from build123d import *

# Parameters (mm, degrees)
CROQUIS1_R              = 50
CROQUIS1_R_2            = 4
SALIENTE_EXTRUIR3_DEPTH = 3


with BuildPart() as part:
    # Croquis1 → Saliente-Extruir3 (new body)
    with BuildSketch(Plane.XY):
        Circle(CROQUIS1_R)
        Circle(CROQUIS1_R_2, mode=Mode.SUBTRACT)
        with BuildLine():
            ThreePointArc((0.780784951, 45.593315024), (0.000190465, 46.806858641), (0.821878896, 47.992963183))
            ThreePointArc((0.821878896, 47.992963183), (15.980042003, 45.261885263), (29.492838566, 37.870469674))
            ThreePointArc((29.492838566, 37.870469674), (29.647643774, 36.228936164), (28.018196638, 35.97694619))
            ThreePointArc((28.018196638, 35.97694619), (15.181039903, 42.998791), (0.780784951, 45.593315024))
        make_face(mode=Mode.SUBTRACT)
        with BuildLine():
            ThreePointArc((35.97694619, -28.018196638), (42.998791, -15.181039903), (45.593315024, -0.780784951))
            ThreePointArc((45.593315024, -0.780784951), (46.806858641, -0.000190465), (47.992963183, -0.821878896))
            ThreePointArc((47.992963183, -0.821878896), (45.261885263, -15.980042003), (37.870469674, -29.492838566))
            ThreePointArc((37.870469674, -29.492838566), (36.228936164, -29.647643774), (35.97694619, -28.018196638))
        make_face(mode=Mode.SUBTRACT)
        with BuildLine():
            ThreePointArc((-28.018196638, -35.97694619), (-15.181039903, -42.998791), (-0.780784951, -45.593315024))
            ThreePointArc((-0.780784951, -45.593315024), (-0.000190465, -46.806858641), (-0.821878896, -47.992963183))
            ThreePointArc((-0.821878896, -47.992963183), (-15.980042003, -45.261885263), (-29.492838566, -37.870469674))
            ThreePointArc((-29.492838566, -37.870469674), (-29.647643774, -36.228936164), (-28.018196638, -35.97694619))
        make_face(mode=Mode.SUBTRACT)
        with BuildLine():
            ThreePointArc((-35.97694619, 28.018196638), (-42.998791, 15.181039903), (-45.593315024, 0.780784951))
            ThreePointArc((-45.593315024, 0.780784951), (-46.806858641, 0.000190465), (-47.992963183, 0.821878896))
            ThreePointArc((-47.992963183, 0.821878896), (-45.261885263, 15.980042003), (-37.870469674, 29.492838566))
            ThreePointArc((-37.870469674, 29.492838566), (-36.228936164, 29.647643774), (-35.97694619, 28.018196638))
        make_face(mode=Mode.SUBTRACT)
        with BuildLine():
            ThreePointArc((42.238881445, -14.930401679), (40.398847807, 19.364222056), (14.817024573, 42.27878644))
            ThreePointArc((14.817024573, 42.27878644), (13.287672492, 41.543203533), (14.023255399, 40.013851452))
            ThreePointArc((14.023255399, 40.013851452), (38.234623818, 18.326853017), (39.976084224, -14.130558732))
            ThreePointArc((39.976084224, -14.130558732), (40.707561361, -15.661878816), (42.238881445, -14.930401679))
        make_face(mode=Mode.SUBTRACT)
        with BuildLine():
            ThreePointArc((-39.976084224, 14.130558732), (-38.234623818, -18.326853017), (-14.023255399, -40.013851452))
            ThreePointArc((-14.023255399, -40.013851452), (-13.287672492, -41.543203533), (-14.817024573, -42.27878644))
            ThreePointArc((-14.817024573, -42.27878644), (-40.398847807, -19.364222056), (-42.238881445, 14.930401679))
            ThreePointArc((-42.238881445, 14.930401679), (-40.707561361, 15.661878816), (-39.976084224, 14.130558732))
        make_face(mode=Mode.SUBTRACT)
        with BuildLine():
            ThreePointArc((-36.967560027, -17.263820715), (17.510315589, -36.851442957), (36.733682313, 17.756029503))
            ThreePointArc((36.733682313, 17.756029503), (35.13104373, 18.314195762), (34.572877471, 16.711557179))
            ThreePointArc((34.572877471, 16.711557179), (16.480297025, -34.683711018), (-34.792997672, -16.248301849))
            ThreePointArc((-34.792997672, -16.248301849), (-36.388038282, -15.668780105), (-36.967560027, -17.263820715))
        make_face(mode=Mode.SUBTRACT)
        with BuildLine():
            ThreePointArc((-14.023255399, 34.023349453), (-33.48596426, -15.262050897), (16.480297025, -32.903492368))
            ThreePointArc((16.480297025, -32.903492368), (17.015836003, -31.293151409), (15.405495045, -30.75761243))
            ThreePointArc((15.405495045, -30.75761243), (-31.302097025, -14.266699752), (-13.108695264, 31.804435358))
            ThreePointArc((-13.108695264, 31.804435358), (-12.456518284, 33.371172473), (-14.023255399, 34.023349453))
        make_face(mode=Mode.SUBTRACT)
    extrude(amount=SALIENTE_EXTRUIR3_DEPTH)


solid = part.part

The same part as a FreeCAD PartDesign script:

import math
import FreeCAD as App
import Part
import Sketcher

V = App.Vector
Q = App.Units.Quantity

doc = App.newDocument("Part")
body = doc.addObject("PartDesign::Body", "Body")

# Sketch on XY plane
sketch1 = body.newObject("Sketcher::SketchObject", "Sketch")
sketch1.AttachmentSupport = (doc.getObject("XY_Plane"), [""])
sketch1.MapMode = "FlatFace"
sketch1.addGeometry(Part.Circle(V(0, 0, 0), V(0, 0, 1), 50), False)
sketch1.addGeometry(Part.ArcOfCircle(Part.Circle(V(-28.699209, -36.96756, 0), V(0, 0, 1), 1.20212), math.radians(55.492836), math.radians(228.685533)), False)
sketch1.addGeometry(Part.ArcOfCircle(Part.Circle(V(0, 0, 0), V(0, 0, 1), 45.6), math.radians(-127.910815), math.radians(-90.981094)), False)
sketch1.addGeometry(Part.ArcOfCircle(Part.Circle(V(-1.299215, -46.784613, 0), V(0, 0, 1), 1.299215), math.radians(-68.444416), math.radians(66.482229)), False)
sketch1.addGeometry(Part.ArcOfCircle(Part.Circle(V(0, 0, 0), V(0, 0, 1), 48), math.radians(-127.910815), math.radians(-90.981094)), False)
sketch1.addGeometry(Part.ArcOfCircle(Part.Circle(V(-41.107483, 14.53048, 0), V(0, 0, 1), 1.2), math.radians(-19.467244), math.radians(160.532756)), False)
sketch1.addGeometry(Part.ArcOfCircle(Part.Circle(V(0, 0, 0), V(0, 0, 1), 42.4), math.radians(160.532756), math.radians(250.686476)), False)
sketch1.addGeometry(Part.ArcOfCircle(Part.Circle(V(-14.42014, -41.146319, 0), V(0, 0, 1), 1.2), math.radians(-109.313524), math.radians(70.686476)), False)
sketch1.addGeometry(Part.ArcOfCircle(Part.Circle(V(0, 0, 0), V(0, 0, 1), 44.8), math.radians(160.532756), math.radians(250.686476)), False)
sketch1.addGeometry(Part.ArcOfCircle(Part.Circle(V(0, 0, 0), V(0, 0, 1), 36.8), math.radians(112.399774), math.radians(296.60481)), False)
sketch1.addGeometry(Part.ArcOfCircle(Part.Circle(V(-13.565975, 32.913892, 0), V(0, 0, 1), 1.2), math.radians(-67.600226), math.radians(112.399774)), False)
sketch1.addGeometry(Part.ArcOfCircle(Part.Circle(V(0, 0, 0), V(0, 0, 1), 34.4), math.radians(112.399774), math.radians(296.60481)), False)
sketch1.addGeometry(Part.ArcOfCircle(Part.Circle(V(15.942896, -31.830552, 0), V(0, 0, 1), 1.2), math.radians(-63.395189), math.radians(116.60481)), False)
sketch1.addGeometry(Part.ArcOfCircle(Part.Circle(V(0, 0, 0), V(0, 0, 1), 40.8), math.radians(-154.967463), math.radians(25.797817)), False)
sketch1.addGeometry(Part.ArcOfCircle(Part.Circle(V(-35.880279, -16.756061, 0), V(0, 0, 1), 1.2), math.radians(25.032537), math.radians(205.032537)), False)
sketch1.addGeometry(Part.ArcOfCircle(Part.Circle(V(0, 0, 0), V(0, 0, 1), 38.4), math.radians(-154.967463), math.radians(25.797817)), False)
sketch1.addGeometry(Part.ArcOfCircle(Part.Circle(V(35.65328, 17.233793, 0), V(0, 0, 1), 1.2), math.radians(25.797817), math.radians(205.797817)), False)
sketch1.addGeometry(Part.ArcOfCircle(Part.Circle(V(36.96756, -28.699209, 0), V(0, 0, 1), 1.20212), math.radians(145.492836), math.radians(318.685533)), False)
sketch1.addGeometry(Part.ArcOfCircle(Part.Circle(V(0, 0, 0), V(0, 0, 1), 45.6), math.radians(-37.910815), math.radians(-0.981094)), False)
sketch1.addGeometry(Part.ArcOfCircle(Part.Circle(V(46.784613, -1.299215, 0), V(0, 0, 1), 1.299215), math.radians(21.555584), math.radians(156.482229)), False)
sketch1.addGeometry(Part.ArcOfCircle(Part.Circle(V(0, 0, 0), V(0, 0, 1), 48), math.radians(-37.910815), math.radians(-0.981094)), False)
sketch1.addGeometry(Part.ArcOfCircle(Part.Circle(V(-36.96756, 28.699209, 0), V(0, 0, 1), 1.20212), math.radians(-34.507164), math.radians(138.685533)), False)
sketch1.addGeometry(Part.ArcOfCircle(Part.Circle(V(0, 0, 0), V(0, 0, 1), 45.6), math.radians(142.089185), math.radians(179.018906)), False)
sketch1.addGeometry(Part.ArcOfCircle(Part.Circle(V(-46.784613, 1.299215, 0), V(0, 0, 1), 1.299215), math.radians(-158.444416), math.radians(-23.517771)), False)
sketch1.addGeometry(Part.ArcOfCircle(Part.Circle(V(0, 0, 0), V(0, 0, 1), 48), math.radians(142.089185), math.radians(179.018906)), False)
sketch1.addGeometry(Part.Circle(V(0, 0, 0), V(0, 0, 1), 4), False)
sketch1.addGeometry(Part.ArcOfCircle(Part.Circle(V(0, 0, 0), V(0, 0, 1), 44.8), math.radians(-19.467244), math.radians(70.686476)), False)
sketch1.addGeometry(Part.ArcOfCircle(Part.Circle(V(41.107483, -14.53048, 0), V(0, 0, 1), 1.2), math.radians(160.532756), math.radians(340.532756)), False)
sketch1.addGeometry(Part.ArcOfCircle(Part.Circle(V(0, 0, 0), V(0, 0, 1), 42.4), math.radians(-19.467244), math.radians(70.686476)), False)
sketch1.addGeometry(Part.ArcOfCircle(Part.Circle(V(14.42014, 41.146319, 0), V(0, 0, 1), 1.2), math.radians(70.686476), math.radians(250.686476)), False)
sketch1.addGeometry(Part.ArcOfCircle(Part.Circle(V(0, 0, 0), V(0, 0, 1), 45.6), math.radians(52.089185), math.radians(89.018906)), False)
sketch1.addGeometry(Part.ArcOfCircle(Part.Circle(V(1.299215, 46.784613, 0), V(0, 0, 1), 1.299215), math.radians(111.555584), math.radians(246.482229)), False)
sketch1.addGeometry(Part.ArcOfCircle(Part.Circle(V(0, 0, 0), V(0, 0, 1), 48), math.radians(52.089185), math.radians(89.018906)), False)
sketch1.addGeometry(Part.ArcOfCircle(Part.Circle(V(28.699209, 36.96756, 0), V(0, 0, 1), 1.20212), math.radians(-124.507164), math.radians(48.685533)), False)
sketch1.addConstraint(Sketcher.Constraint("Coincident", 1, 1, 2, 1))
sketch1.addConstraint(Sketcher.Constraint("Coincident", 2, 2, 3, 2))
sketch1.addConstraint(Sketcher.Constraint("Coincident", 3, 1, 4, 2))
sketch1.addConstraint(Sketcher.Constraint("Coincident", 4, 1, 1, 2))
sketch1.addConstraint(Sketcher.Constraint("Tangent", 5, 1, 6, 1))
sketch1.addConstraint(Sketcher.Constraint("Tangent", 6, 2, 7, 2))
sketch1.addConstraint(Sketcher.Constraint("Tangent", 7, 1, 8, 2))
sketch1.addConstraint(Sketcher.Constraint("Tangent", 8, 1, 5, 2))
sketch1.addConstraint(Sketcher.Constraint("Tangent", 9, 1, 10, 2))
sketch1.addConstraint(Sketcher.Constraint("Tangent", 10, 1, 11, 1))
sketch1.addConstraint(Sketcher.Constraint("Tangent", 11, 2, 12, 2))
sketch1.addConstraint(Sketcher.Constraint("Tangent", 12, 1, 9, 2))
sketch1.addConstraint(Sketcher.Constraint("Tangent", 13, 1, 14, 2))
sketch1.addConstraint(Sketcher.Constraint("Tangent", 14, 1, 15, 1))
sketch1.addConstraint(Sketcher.Constraint("Tangent", 15, 2, 16, 2))
sketch1.addConstraint(Sketcher.Constraint("Tangent", 16, 1, 13, 2))
sketch1.addConstraint(Sketcher.Constraint("Coincident", 17, 1, 18, 1))
sketch1.addConstraint(Sketcher.Constraint("Coincident", 18, 2, 19, 2))
sketch1.addConstraint(Sketcher.Constraint("Coincident", 19, 1, 20, 2))
sketch1.addConstraint(Sketcher.Constraint("Coincident", 20, 1, 17, 2))
sketch1.addConstraint(Sketcher.Constraint("Coincident", 21, 1, 22, 1))
sketch1.addConstraint(Sketcher.Constraint("Coincident", 22, 2, 23, 2))
sketch1.addConstraint(Sketcher.Constraint("Coincident", 23, 1, 24, 2))
sketch1.addConstraint(Sketcher.Constraint("Coincident", 24, 1, 21, 2))
sketch1.addConstraint(Sketcher.Constraint("Tangent", 26, 1, 27, 2))
sketch1.addConstraint(Sketcher.Constraint("Tangent", 27, 1, 28, 1))
sketch1.addConstraint(Sketcher.Constraint("Tangent", 28, 2, 29, 2))
sketch1.addConstraint(Sketcher.Constraint("Tangent", 29, 1, 26, 2))
sketch1.addConstraint(Sketcher.Constraint("Coincident", 30, 2, 31, 2))
sketch1.addConstraint(Sketcher.Constraint("Coincident", 31, 1, 32, 2))
sketch1.addConstraint(Sketcher.Constraint("Coincident", 32, 1, 33, 2))
sketch1.addConstraint(Sketcher.Constraint("Coincident", 33, 1, 30, 1))
sketch1.addConstraint(Sketcher.Constraint("Coincident", 0, 3, -1, 1))
sketch1.addConstraint(Sketcher.Constraint("Coincident", 2, 3, -1, 1))
sketch1.addConstraint(Sketcher.Constraint("Coincident", 4, 3, -1, 1))
sketch1.addConstraint(Sketcher.Constraint("Coincident", 6, 3, -1, 1))
sketch1.addConstraint(Sketcher.Constraint("Coincident", 8, 3, -1, 1))
sketch1.addConstraint(Sketcher.Constraint("Coincident", 9, 3, -1, 1))
sketch1.addConstraint(Sketcher.Constraint("Coincident", 11, 3, -1, 1))
sketch1.addConstraint(Sketcher.Constraint("Coincident", 13, 3, -1, 1))
sketch1.addConstraint(Sketcher.Constraint("Coincident", 15, 3, -1, 1))
sketch1.addConstraint(Sketcher.Constraint("Coincident", 18, 3, -1, 1))
sketch1.addConstraint(Sketcher.Constraint("Coincident", 20, 3, -1, 1))
sketch1.addConstraint(Sketcher.Constraint("Coincident", 22, 3, -1, 1))
sketch1.addConstraint(Sketcher.Constraint("Coincident", 24, 3, -1, 1))
sketch1.addConstraint(Sketcher.Constraint("Coincident", 25, 3, -1, 1))
sketch1.addConstraint(Sketcher.Constraint("Coincident", 26, 3, -1, 1))
sketch1.addConstraint(Sketcher.Constraint("Coincident", 28, 3, -1, 1))
sketch1.addConstraint(Sketcher.Constraint("Coincident", 30, 3, -1, 1))
sketch1.addConstraint(Sketcher.Constraint("Coincident", 32, 3, -1, 1))
sketch1.addConstraint(Sketcher.Constraint("Equal", 7, 10))
sketch1.addConstraint(Sketcher.Constraint("Equal", 12, 14))
sketch1.addConstraint(Sketcher.Constraint("Equal", 1, 17))
sketch1.addConstraint(Sketcher.Constraint("Equal", 2, 18))
sketch1.addConstraint(Sketcher.Constraint("Equal", 3, 19))
sketch1.addConstraint(Sketcher.Constraint("Equal", 4, 20))
sketch1.addConstraint(Sketcher.Constraint("Equal", 17, 21))
sketch1.addConstraint(Sketcher.Constraint("Equal", 18, 22))
sketch1.addConstraint(Sketcher.Constraint("Equal", 19, 23))
sketch1.addConstraint(Sketcher.Constraint("Equal", 20, 24))
sketch1.addConstraint(Sketcher.Constraint("Equal", 8, 26))
sketch1.addConstraint(Sketcher.Constraint("Equal", 16, 27))
sketch1.addConstraint(Sketcher.Constraint("Equal", 22, 30))
sketch1.addConstraint(Sketcher.Constraint("Equal", 23, 31))
sketch1.addConstraint(Sketcher.Constraint("Equal", 24, 32))
sketch1.addConstraint(Sketcher.Constraint("Equal", 21, 33))
sketch1.addConstraint(Sketcher.Constraint("Symmetric", 17, 3, 21, 3, -1, 1))
sketch1.addConstraint(Sketcher.Constraint("Symmetric", 19, 3, 23, 3, -1, 1))
sketch1.addConstraint(Sketcher.Constraint("Symmetric", 3, 3, 31, 3, -1, 1))
sketch1.addConstraint(Sketcher.Constraint("Symmetric", 1, 3, 33, 3, -1, 1))
sketch1.addConstraint(Sketcher.Constraint("Vertical", 6, 2, 9, 1))
sketch1.addConstraint(Sketcher.Constraint("Vertical", 21, 3, 13, 1))
sketch1.addConstraint(Sketcher.Constraint("Diameter", 0, Q("100 mm")))
sketch1.addConstraint(Sketcher.Constraint("Diameter", 25, Q("8 mm")))
sketch1.addConstraint(Sketcher.Constraint("Radius", 4, Q("48 mm")))
sketch1.addConstraint(Sketcher.Constraint("Radius", 2, Q("45.6 mm")))
sketch1.addConstraint(Sketcher.Constraint("Radius", 5, Q("1.2 mm")))
sketch1.addConstraint(Sketcher.Constraint("Radius", 6, Q("42.4 mm")))
sketch1.addConstraint(Sketcher.Constraint("Radius", 9, Q("36.8 mm")))
sketch1.addConstraint(Sketcher.Constraint("Radius", 13, Q("40.8 mm")))
sketch1.addConstraint(Sketcher.Constraint("Radius", 1, Q("1.20212 mm")))
sketch1.addConstraint(Sketcher.Constraint("Radius", 3, Q("1.299215 mm")))
sketch1.addConstraint(Sketcher.Constraint("DistanceY", -1, 1, 8, 1, Q("14.930402 mm")))
sketch1.addConstraint(Sketcher.Constraint("DistanceY", 14, 1, -1, 1, Q("16.248302 mm")))
sketch1.addConstraint(Sketcher.Constraint("DistanceY", 26, 1, -1, 1, Q("14.930402 mm")))
sketch1.addConstraint(Sketcher.Constraint("DistanceX", 1, 3, -1, 1, Q("28.699209 mm")))
sketch1.addConstraint(Sketcher.Constraint("DistanceY", 1, 3, -1, 1, Q("36.96756 mm")))
sketch1.addConstraint(Sketcher.Constraint("DistanceX", 7, 3, -1, 1, Q("14.42014 mm")))
sketch1.addConstraint(Sketcher.Constraint("DistanceX", -1, 1, 16, 3, Q("35.65328 mm")))
sketch1.addConstraint(Sketcher.Constraint("DistanceY", 17, 3, -1, 1, Q("28.699209 mm")))
sketch1.addConstraint(Sketcher.Constraint("DistanceX", -1, 1, 29, 3, Q("14.42014 mm")))
sketch1.addConstraint(Sketcher.Constraint("DistanceX", 3, 1, -1, 1, Q("0.821879 mm")))
sketch1.addConstraint(Sketcher.Constraint("DistanceY", 19, 1, -1, 1, Q("0.821879 mm")))
sketch1.addConstraint(Sketcher.Constraint("DistanceX", 3, 3, -1, 1, Q("1.299215 mm")))
sketch1.addConstraint(Sketcher.Constraint("DistanceX", -1, 1, 12, 3, Q("15.942896 mm")))
sketch1.addConstraint(Sketcher.Constraint("DistanceX", -1, 1, 19, 3, Q("46.784613 mm")))
pad1 = body.newObject("PartDesign::Pad", "Pad")
pad1.Profile = sketch1
pad1.Length = 3

doc.recompute()
